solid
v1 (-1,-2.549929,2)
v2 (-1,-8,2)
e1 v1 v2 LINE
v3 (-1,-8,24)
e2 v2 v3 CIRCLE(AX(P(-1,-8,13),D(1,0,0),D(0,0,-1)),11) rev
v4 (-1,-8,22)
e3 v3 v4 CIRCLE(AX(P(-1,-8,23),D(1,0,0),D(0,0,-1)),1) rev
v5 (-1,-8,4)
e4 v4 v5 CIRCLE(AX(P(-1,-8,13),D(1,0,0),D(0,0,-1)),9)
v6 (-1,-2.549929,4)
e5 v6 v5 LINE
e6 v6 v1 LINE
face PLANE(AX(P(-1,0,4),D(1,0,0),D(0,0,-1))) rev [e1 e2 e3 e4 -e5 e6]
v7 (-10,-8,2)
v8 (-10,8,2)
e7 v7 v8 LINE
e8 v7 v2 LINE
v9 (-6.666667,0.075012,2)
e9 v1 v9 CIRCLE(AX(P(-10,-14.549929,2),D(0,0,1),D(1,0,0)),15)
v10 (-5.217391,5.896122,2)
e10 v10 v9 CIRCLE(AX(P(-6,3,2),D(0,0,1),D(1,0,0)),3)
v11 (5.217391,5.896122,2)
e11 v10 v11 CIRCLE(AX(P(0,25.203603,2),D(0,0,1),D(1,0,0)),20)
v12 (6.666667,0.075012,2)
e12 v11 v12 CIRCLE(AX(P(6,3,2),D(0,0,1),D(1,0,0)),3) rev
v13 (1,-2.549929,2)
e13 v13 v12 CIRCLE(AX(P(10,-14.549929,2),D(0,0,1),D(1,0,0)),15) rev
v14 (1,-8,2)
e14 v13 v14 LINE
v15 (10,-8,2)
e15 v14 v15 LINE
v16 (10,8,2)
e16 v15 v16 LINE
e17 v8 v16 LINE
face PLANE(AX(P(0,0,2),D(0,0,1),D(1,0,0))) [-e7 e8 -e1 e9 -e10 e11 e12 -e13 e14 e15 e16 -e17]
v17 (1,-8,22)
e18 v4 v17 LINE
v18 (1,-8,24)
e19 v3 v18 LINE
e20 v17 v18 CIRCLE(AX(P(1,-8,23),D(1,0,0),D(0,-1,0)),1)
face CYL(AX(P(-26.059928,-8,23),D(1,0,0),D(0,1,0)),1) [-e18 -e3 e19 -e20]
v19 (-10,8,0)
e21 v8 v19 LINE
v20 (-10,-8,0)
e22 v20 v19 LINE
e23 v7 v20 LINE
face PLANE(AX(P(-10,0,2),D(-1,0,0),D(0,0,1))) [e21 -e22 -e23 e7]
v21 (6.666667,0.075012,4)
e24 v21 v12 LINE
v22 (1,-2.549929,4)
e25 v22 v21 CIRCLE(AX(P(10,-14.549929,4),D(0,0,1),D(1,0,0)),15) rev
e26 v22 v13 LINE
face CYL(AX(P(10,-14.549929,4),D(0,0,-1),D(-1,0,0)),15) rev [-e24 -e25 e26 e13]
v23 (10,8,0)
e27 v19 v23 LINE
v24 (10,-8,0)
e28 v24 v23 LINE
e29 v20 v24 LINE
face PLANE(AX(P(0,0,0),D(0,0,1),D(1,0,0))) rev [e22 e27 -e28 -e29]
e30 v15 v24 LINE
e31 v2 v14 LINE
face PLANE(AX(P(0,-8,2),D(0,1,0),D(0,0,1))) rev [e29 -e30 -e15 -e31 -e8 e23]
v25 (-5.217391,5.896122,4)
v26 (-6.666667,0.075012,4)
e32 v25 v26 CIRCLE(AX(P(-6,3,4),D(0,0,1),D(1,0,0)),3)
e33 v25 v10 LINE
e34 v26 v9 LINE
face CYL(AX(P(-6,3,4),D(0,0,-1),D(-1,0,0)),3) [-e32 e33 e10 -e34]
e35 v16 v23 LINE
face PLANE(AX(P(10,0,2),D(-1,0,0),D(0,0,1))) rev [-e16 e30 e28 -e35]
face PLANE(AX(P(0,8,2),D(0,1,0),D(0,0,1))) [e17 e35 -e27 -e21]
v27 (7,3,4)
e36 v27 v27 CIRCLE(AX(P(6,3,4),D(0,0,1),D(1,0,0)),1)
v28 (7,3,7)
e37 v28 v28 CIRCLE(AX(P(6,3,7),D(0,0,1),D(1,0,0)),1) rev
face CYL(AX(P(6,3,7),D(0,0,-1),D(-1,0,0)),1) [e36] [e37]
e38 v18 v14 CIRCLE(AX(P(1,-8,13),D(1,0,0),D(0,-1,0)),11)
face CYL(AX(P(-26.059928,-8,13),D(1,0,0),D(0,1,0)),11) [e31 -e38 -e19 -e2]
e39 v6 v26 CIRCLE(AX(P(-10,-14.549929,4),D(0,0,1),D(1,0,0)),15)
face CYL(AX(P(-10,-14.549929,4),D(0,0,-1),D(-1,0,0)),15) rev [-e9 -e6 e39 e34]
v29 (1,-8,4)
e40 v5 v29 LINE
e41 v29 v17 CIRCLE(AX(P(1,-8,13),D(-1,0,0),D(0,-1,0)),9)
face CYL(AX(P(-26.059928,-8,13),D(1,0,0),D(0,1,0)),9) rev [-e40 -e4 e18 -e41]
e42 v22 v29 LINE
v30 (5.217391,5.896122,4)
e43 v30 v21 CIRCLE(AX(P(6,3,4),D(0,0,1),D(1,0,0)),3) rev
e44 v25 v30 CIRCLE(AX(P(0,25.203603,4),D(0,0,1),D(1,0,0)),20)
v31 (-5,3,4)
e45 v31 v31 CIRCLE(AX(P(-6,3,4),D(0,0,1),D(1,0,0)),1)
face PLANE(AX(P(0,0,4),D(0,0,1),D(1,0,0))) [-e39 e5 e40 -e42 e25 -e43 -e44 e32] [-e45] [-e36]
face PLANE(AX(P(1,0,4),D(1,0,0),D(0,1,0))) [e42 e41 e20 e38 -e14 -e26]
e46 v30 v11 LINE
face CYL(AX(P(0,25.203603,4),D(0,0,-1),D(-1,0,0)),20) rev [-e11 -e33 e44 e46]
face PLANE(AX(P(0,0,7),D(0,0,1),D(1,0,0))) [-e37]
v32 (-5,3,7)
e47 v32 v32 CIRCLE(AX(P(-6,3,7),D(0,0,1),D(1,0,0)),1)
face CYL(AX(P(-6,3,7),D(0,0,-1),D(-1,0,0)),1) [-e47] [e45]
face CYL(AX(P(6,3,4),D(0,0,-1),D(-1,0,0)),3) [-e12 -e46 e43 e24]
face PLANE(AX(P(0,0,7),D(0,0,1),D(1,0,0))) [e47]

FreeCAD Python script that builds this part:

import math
import FreeCAD as App
import Part
import Sketcher
from FreeCAD import Vector

doc = App.newDocument("Part")
body = doc.addObject("PartDesign::Body", "Body")

sketch1 = body.newObject("Sketcher::SketchObject", "Sketch")
sketch1.AttachmentSupport = (doc.getObject("XY_Plane"), [""])
sketch1.MapMode = "FlatFace"
sketch1.addGeometry([
    Part.LineSegment(Vector(-10, 8, 0), Vector(-10, -8, 0)),
    Part.LineSegment(Vector(-10, -8, 0), Vector(-1, -8, 0)),
    Part.LineSegment(Vector(-1, -8, 0), Vector(-1, -2.5, 0)),
    Part.ArcOfCircle(Part.Circle(Vector(-10, -14.5, 0), Vector(0, 0, 1), 15), math.radians(53), math.radians(77)),
    Part.ArcOfCircle(Part.Circle(Vector(-6, 3, 0), Vector(0, 0, 1), 3), math.radians(75), math.radians(257)),
    Part.ArcOfCircle(Part.Circle(Vector(0, 25.2, 0), Vector(0, 0, 1), 20), math.radians(-105), math.radians(-75)),
    Part.ArcOfCircle(Part.Circle(Vector(6, 3, 0), Vector(0, 0, 1), 3), math.radians(-77), math.radians(105)),
    Part.ArcOfCircle(Part.Circle(Vector(10, -14.5, 0), Vector(0, 0, 1), 15), math.radians(103), math.radians(127)),
    Part.LineSegment(Vector(1, -2.5, 0), Vector(1, -8, 0)),
    Part.LineSegment(Vector(1, -8, 0), Vector(10, -8, 0)),
    Part.LineSegment(Vector(10, -8, 0), Vector(10, 8, 0)),
    Part.LineSegment(Vector(10, 8, 0), Vector(-10, 8, 0)),
], False)
sketch1.addConstraint([
    Sketcher.Constraint("Coincident", 0, 2, 1, 1),
    Sketcher.Constraint("Coincident", 1, 2, 2, 1),
    Sketcher.Constraint("Coincident", 2, 2, 3, 1),
    Sketcher.Constraint("Tangent", 3, 2, 4, 2),
    Sketcher.Constraint("Tangent", 4, 1, 5, 1),
    Sketcher.Constraint("Tangent", 5, 2, 6, 2),
    Sketcher.Constraint("Tangent", 6, 1, 7, 1),
    Sketcher.Constraint("Coincident", 7, 2, 8, 1),
    Sketcher.Constraint("Coincident", 8, 2, 9, 1),
    Sketcher.Constraint("Coincident", 9, 2, 10, 1),
    Sketcher.Constraint("Coincident", 10, 2, 11, 1),
    Sketcher.Constraint("Coincident", 11, 2, 0, 1),
    Sketcher.Constraint("Vertical", 0),
    Sketcher.Constraint("Horizontal", 1),
    Sketcher.Constraint("Vertical", 2),
    Sketcher.Constraint("Vertical", 8),
    Sketcher.Constraint("Horizontal", 9),
    Sketcher.Constraint("Vertical", 10),
    Sketcher.Constraint("Horizontal", 11),
    Sketcher.Constraint("Equal", 4, 6),
    Sketcher.Constraint("Equal", 3, 7),
    Sketcher.Constraint("Symmetric", 0, 2, 10, 2, -1, 1),
    Sketcher.Constraint("Symmetric", 4, 3, 6, 3, -2),
    Sketcher.Constraint("Symmetric", 2, 2, 7, 2, -2),
    Sketcher.Constraint("Horizontal", 1, 2, 8, 2),
    Sketcher.Constraint("Vertical", 3, 3, 0, 2),
    Sketcher.Constraint("Radius", 3, 15.0),
    Sketcher.Constraint("Radius", 4, 3.0),
    Sketcher.Constraint("Radius", 5, 20.0),
    Sketcher.Constraint("DistanceX", 1, 1, 1, 2, 9.0),
    Sketcher.Constraint("DistanceX", 11, 2, 11, 1, 20.0),
    Sketcher.Constraint("DistanceY", 0, 2, 0, 1, 16.0),
    Sketcher.Constraint("DistanceX", 4, 3, -1, 1, 6.0),
    Sketcher.Constraint("DistanceY", -1, 1, 4, 3, 3.0),
])
pad1 = body.newObject("PartDesign::Pad", "Pad")
pad1.Profile = sketch1
pad1.Length = 2

sketch2 = body.newObject("Sketcher::SketchObject", "Sketch001")
sketch2.AttachmentSupport = (doc.getObject("XY_Plane"), [""])
sketch2.MapMode = "FlatFace"
sketch2.addGeometry([
    Part.LineSegment(Vector(-1, -2.5, 0), Vector(-1, -8, 0)),
    Part.LineSegment(Vector(-1, -8, 0), Vector(1, -8, 0)),
    Part.LineSegment(Vector(1, -8, 0), Vector(1, -2.5, 0)),
    Part.ArcOfCircle(Part.Circle(Vector(10, -14.5, 0), Vector(0, 0, 1), 15), math.radians(103), math.radians(127)),
    Part.ArcOfCircle(Part.Circle(Vector(6, 3, 0), Vector(0, 0, 1), 3), math.radians(-77), math.radians(105)),
    Part.ArcOfCircle(Part.Circle(Vector(0, 25.2, 0), Vector(0, 0, 1), 20), math.radians(-105), math.radians(-75)),
    Part.ArcOfCircle(Part.Circle(Vector(-6, 3, 0), Vector(0, 0, 1), 3), math.radians(75), math.radians(257)),
    Part.ArcOfCircle(Part.Circle(Vector(-10, -14.5, 0), Vector(0, 0, 1), 15), math.radians(53), math.radians(77)),
    Part.Circle(Vector(-6, 3, 0), Vector(0, 0, 1), 1),
    Part.Circle(Vector(6, 3, 0), Vector(0, 0, 1), 1),
], False)
sketch2.addConstraint([
    Sketcher.Constraint("Coincident", 0, 2, 1, 1),
    Sketcher.Constraint("Coincident", 1, 2, 2, 1),
    Sketcher.Constraint("Coincident", 2, 2, 3, 2),
    Sketcher.Constraint("Tangent", 3, 1, 4, 1),
    Sketcher.Constraint("Tangent", 4, 2, 5, 2),
    Sketcher.Constraint("Tangent", 5, 1, 6, 1),
    Sketcher.Constraint("Tangent", 6, 2, 7, 2),
    Sketcher.Constraint("Coincident", 7, 1, 0, 1),
    Sketcher.Constraint("Vertical", 0),
    Sketcher.Constraint("Horizontal", 1),
    Sketcher.Constraint("Vertical", 2),
    Sketcher.Constraint("Coincident", 8, 3, 6, 3),
    Sketcher.Constraint("Coincident", 9, 3, 4, 3),
    Sketcher.Constraint("Equal", 4, 6),
    Sketcher.Constraint("Equal", 3, 7),
    Sketcher.Constraint("Equal", 8, 9),
    Sketcher.Constraint("Symmetric", 4, 3, 6, 3, -2),
    Sketcher.Constraint("Symmetric", 2, 2, 7, 1, -2),
    Sketcher.Constraint("Diameter", 8, 2.0),
    Sketcher.Constraint("Radius", 3, 15.0),
    Sketcher.Constraint("Radius", 4, 3.0),
    Sketcher.Constraint("Radius", 5, 20.0),
    Sketcher.Constraint("DistanceX", 1, 1, 1, 2, 2.0),
    Sketcher.Constraint("DistanceX", -1, 1, 3, 3, 10.0),
    Sketcher.Constraint("DistanceX", -1, 1, 4, 3, 6.0),
    Sketcher.Constraint("DistanceY", -1, 1, 4, 3, 3.0),
    Sketcher.Constraint("DistanceY", 0, 2, -1, 1, 8.0),
])
pad2 = body.newObject("PartDesign::Pad", "Pad001")
pad2.Profile = sketch2
pad2.Length = 4

sketch3 = body.newObject("Sketcher::SketchObject", "Sketch002")
sketch3.AttachmentSupport = (doc.getObject("XY_Plane"), [""])
sketch3.MapMode = "FlatFace"
sketch3.addGeometry([
    Part.Circle(Vector(-6, 3, 0), Vector(0, 0, 1), 1),
    Part.Circle(Vector(6, 3, 0), Vector(0, 0, 1), 1),
], False)
sketch3.addConstraint([
    Sketcher.Constraint("Equal", 0, 1),
    Sketcher.Constraint("Symmetric", 0, 3, 1, 3, -2),
    Sketcher.Constraint("Diameter", 0, 2.0),
    Sketcher.Constraint("DistanceX", 0, 3, -1, 1, 6.0),
    Sketcher.Constraint("DistanceY", -1, 1, 0, 3, 3.0),
])
pad3 = body.newObject("PartDesign::Pad", "Pad002")
pad3.Profile = sketch3
pad3.Length = 7

sketch4 = body.newObject("Sketcher::SketchObject", "Sketch003")
sketch4.AttachmentSupport = (doc.getObject("YZ_Plane"), [""])
sketch4.MapMode = "FlatFace"
sketch4.AttachmentOffset = App.Placement(Vector(0, 0, 1), App.Rotation())
sketch4.addGeometry([
    Part.LineSegment(Vector(-8, 2, 0), Vector(-8, 4, 0)),
    Part.ArcOfCircle(Part.Circle(Vector(-8, 13, 0), Vector(0, 0, 1), 9), math.radians(90), math.radians(270)),
    Part.ArcOfCircle(Part.Circle(Vector(-8, 23, 0), Vector(0, 0, 1), 1), math.radians(-90), math.radians(90)),
    Part.ArcOfCircle(Part.Circle(Vector(-8, 13, 0), Vector(0, 0, 1), 11), math.radians(90), math.radians(270)),
], False)
sketch4.addConstraint([
    Sketcher.Constraint("Coincident", 0, 2, 1, 2),
    Sketcher.Constraint("Tangent", 1, 1, 2, 1),
    Sketcher.Constraint("Tangent", 2, 2, 3, 1),
    Sketcher.Constraint("Coincident", 3, 2, 0, 1),
    Sketcher.Constraint("Vertical", 0),
    Sketcher.Constraint("Coincident", 3, 3, 1, 3),
    Sketcher.Constraint("Vertical", 1, 3, 2, 3),
    Sketcher.Constraint("Vertical", 3, 3, 0, 2),
    Sketcher.Constraint("Radius", 1, 9.0),
    Sketcher.Constraint("Radius", 2, 1.0),
    Sketcher.Constraint("DistanceX", 1, 3, -1, 1, 8.0),
    Sketcher.Constraint("DistanceY", -1, 1, 1, 3, 13.0),
])
pad4 = body.newObject("PartDesign::Pad", "Pad003")
pad4.Profile = sketch4
pad4.Length = 2
pad4.Reversed = True

doc.recompute()
